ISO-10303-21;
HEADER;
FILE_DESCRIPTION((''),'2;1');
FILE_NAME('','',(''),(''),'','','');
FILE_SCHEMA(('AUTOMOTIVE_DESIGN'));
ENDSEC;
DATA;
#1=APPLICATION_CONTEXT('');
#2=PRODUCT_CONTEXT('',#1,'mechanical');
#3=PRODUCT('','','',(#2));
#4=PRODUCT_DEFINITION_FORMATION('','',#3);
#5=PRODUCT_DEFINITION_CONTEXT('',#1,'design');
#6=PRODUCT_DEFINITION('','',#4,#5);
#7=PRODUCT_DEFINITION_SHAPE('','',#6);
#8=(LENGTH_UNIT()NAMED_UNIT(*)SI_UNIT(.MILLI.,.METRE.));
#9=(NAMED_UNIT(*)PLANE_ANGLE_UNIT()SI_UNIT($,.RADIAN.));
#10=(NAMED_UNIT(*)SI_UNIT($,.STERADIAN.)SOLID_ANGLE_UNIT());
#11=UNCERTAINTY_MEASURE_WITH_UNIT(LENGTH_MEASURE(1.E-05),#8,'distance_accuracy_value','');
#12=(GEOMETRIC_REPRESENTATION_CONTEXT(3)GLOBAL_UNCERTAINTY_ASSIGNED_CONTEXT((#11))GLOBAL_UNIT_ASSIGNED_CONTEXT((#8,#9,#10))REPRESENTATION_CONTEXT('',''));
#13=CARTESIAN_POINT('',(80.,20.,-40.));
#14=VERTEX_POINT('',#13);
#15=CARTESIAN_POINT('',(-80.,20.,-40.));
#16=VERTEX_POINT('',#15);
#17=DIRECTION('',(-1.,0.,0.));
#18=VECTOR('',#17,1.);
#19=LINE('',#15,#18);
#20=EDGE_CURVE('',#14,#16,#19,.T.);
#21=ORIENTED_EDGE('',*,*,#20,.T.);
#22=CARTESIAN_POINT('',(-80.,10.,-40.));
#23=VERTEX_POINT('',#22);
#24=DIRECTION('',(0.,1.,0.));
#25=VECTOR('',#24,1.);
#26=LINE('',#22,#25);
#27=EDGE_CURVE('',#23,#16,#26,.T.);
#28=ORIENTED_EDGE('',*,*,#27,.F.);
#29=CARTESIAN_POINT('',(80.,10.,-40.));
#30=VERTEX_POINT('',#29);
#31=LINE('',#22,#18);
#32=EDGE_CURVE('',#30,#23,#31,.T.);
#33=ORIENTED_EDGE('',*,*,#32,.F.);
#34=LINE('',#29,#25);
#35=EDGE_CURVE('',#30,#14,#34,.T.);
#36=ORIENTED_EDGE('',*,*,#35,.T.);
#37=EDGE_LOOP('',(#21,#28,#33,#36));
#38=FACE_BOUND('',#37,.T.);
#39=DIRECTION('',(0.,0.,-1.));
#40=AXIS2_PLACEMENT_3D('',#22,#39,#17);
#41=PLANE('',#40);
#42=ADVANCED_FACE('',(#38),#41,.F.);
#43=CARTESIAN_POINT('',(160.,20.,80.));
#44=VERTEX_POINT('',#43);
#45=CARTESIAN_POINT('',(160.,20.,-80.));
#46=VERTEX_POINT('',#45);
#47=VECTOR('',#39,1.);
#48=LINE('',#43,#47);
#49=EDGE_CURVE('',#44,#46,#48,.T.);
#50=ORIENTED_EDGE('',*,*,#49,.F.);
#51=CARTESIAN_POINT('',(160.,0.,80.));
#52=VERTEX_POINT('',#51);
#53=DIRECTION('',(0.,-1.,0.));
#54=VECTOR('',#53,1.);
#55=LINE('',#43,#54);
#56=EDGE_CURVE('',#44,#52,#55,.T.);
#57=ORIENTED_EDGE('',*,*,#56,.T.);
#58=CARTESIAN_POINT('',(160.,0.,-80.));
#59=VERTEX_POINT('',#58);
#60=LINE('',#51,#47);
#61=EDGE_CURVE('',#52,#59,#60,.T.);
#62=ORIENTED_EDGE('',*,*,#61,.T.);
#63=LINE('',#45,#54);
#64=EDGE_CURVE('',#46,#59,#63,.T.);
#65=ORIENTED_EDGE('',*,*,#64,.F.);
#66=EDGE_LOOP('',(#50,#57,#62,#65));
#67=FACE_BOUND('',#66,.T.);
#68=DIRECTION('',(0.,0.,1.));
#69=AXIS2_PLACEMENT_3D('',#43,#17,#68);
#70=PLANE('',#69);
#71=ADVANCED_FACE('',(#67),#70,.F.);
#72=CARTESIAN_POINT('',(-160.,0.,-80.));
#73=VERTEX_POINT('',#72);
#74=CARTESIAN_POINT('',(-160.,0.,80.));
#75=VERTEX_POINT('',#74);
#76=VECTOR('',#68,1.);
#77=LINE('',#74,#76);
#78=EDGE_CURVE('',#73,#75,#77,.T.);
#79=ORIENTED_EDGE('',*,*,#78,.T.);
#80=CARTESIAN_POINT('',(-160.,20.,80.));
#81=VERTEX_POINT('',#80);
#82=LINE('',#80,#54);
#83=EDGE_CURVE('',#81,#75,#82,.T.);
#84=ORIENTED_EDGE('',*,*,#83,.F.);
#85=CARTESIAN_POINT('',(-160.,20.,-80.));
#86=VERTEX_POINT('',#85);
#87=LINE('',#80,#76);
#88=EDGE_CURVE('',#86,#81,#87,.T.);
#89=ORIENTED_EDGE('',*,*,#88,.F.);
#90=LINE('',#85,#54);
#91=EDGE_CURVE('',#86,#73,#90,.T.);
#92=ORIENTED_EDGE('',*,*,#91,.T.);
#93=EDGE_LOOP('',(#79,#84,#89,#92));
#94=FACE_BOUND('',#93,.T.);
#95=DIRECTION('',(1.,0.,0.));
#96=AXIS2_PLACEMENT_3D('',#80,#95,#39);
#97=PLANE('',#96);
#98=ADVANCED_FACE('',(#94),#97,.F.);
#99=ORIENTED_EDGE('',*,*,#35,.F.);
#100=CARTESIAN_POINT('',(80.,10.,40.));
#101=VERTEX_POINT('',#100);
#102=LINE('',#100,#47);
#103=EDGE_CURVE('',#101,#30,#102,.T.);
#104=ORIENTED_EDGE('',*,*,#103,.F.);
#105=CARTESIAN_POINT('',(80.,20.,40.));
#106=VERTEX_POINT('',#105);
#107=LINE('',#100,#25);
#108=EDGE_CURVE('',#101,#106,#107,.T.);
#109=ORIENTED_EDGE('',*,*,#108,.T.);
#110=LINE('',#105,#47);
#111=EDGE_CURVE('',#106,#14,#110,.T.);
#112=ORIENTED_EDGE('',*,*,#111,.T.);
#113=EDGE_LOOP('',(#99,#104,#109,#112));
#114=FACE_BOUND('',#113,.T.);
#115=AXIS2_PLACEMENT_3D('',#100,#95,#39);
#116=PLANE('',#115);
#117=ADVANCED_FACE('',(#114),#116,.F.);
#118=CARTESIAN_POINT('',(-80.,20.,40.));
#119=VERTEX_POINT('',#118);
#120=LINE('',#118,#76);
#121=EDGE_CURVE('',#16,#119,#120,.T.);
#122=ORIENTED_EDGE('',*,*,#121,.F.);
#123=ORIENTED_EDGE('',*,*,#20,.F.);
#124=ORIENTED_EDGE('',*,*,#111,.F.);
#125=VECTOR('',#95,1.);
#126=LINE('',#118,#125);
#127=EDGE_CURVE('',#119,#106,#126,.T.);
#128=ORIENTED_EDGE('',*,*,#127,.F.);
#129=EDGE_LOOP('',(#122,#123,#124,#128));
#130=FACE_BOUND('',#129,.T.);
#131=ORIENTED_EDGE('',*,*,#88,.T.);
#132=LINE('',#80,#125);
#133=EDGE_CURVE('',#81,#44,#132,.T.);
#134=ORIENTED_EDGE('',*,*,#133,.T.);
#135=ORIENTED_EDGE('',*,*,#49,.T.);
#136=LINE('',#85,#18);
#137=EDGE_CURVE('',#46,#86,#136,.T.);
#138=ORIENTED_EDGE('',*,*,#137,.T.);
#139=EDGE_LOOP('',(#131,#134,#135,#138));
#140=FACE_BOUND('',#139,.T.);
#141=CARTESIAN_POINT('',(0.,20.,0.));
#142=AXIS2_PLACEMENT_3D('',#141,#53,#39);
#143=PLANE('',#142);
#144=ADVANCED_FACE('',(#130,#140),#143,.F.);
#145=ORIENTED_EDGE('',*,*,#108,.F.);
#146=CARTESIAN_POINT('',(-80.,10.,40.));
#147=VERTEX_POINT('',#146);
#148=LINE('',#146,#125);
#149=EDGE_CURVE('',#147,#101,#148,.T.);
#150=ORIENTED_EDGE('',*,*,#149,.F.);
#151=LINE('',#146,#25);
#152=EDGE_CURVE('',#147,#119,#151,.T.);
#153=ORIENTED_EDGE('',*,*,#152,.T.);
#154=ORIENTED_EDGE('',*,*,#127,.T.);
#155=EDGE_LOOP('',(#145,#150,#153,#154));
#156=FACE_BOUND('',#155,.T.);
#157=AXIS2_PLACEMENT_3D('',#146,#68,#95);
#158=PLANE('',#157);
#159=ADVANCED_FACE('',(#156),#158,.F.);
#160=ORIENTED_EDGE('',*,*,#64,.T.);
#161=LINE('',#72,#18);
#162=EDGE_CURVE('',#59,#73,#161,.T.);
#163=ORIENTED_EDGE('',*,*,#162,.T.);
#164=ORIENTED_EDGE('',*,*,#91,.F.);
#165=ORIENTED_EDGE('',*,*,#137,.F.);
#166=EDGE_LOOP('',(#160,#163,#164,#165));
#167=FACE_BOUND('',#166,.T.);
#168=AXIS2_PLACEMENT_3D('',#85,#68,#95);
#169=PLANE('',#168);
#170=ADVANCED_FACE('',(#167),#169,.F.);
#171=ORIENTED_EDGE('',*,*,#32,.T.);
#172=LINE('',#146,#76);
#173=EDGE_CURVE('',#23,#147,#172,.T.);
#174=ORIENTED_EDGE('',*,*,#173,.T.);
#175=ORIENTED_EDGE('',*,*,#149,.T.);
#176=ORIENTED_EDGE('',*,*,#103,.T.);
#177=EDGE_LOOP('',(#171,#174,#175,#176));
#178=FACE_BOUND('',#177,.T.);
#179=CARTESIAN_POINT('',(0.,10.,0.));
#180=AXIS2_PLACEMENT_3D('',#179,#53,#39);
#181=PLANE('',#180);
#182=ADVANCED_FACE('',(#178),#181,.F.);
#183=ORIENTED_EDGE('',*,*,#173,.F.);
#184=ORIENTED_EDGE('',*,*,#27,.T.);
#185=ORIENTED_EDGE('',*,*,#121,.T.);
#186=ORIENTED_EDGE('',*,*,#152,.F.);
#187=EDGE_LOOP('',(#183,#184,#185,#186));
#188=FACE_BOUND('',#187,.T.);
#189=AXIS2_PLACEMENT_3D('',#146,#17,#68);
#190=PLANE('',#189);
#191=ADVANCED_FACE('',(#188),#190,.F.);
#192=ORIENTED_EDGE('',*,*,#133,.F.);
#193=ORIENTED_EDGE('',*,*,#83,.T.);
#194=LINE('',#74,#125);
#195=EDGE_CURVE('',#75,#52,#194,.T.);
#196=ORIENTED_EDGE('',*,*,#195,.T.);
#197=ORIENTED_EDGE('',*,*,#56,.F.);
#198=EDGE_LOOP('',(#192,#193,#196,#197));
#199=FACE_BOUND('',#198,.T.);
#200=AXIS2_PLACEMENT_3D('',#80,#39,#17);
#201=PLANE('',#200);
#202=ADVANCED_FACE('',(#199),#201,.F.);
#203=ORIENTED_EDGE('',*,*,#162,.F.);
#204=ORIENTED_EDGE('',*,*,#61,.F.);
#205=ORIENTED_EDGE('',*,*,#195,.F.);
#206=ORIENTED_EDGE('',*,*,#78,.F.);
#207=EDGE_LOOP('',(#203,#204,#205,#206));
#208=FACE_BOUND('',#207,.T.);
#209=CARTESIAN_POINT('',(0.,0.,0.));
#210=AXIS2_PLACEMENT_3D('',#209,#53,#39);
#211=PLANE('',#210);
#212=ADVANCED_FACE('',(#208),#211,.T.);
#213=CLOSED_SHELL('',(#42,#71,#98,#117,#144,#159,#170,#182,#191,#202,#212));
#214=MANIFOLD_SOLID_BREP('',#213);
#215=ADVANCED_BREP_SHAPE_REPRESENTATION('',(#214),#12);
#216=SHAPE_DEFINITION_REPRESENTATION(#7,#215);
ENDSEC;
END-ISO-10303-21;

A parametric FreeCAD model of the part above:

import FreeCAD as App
import Part
import Sketcher

V = App.Vector
Q = App.Units.Quantity


def add_polygon(sketch, points):
    """Adds a closed chain of lines whose ends are joined by coincident constraints."""
    first, n = sketch.GeometryCount, len(points)
    for a, b in zip(points, points[1:] + points[:1]):
        sketch.addGeometry(Part.LineSegment(App.Vector(*a, 0), App.Vector(*b, 0)), False)
    for i in range(n):
        sketch.addConstraint(Sketcher.Constraint("Coincident", first + i, 2, first + (i + 1) % n, 1))

doc = App.newDocument("Part")
body = doc.addObject("PartDesign::Body", "Body")

# Sketch on XZ plane
sketch1 = body.newObject("Sketcher::SketchObject", "Sketch")
sketch1.AttachmentSupport = (doc.getObject("XZ_Plane"), [""])
sketch1.MapMode = "FlatFace"
add_polygon(sketch1, [(-160, -80), (-160, 80), (160, 80), (160, -80)])  # lines 0-3
sketch1.addConstraint([
    Sketcher.Constraint("Vertical", 0),
    Sketcher.Constraint("Horizontal", 1),
    Sketcher.Constraint("Vertical", 2),
    Sketcher.Constraint("Horizontal", 3),
    Sketcher.Constraint("Symmetric", 0, 2, 2, 2, -1, 1),
    Sketcher.Constraint("DistanceX", 1, 1, 1, 2, Q("320 mm")),
    Sketcher.Constraint("DistanceY", 0, 1, 0, 2, Q("160 mm")),
])
pad1 = body.newObject("PartDesign::Pad", "Pad")
pad1.Profile = sketch1
pad1.Length = 20
pad1.Reversed = True

# Sketch on XZ plane
sketch2 = body.newObject("Sketcher::SketchObject", "Sketch001")
sketch2.AttachmentSupport = (doc.getObject("XZ_Plane"), [""])
sketch2.MapMode = "FlatFace"
sketch2.AttachmentOffset = App.Placement(V(0, 0, -20), App.Rotation())
add_polygon(sketch2, [(-80, -40), (-80, 40), (80, 40), (80, -40)])  # lines 0-3
sketch2.addConstraint([
    Sketcher.Constraint("Vertical", 0),
    Sketcher.Constraint("Horizontal", 1),
    Sketcher.Constraint("Vertical", 2),
    Sketcher.Constraint("Horizontal", 3),
    Sketcher.Constraint("Symmetric", 0, 2, 2, 2, -1, 1),
    Sketcher.Constraint("DistanceX", 1, 1, 1, 2, Q("160 mm")),
    Sketcher.Constraint("DistanceY", 0, 1, 0, 2, Q("80 mm")),
])
pocket1 = body.newObject("PartDesign::Pocket", "Pocket")
pocket1.Profile = sketch2
pocket1.Length = 10
pocket1.Reversed = True

doc.recompute()
